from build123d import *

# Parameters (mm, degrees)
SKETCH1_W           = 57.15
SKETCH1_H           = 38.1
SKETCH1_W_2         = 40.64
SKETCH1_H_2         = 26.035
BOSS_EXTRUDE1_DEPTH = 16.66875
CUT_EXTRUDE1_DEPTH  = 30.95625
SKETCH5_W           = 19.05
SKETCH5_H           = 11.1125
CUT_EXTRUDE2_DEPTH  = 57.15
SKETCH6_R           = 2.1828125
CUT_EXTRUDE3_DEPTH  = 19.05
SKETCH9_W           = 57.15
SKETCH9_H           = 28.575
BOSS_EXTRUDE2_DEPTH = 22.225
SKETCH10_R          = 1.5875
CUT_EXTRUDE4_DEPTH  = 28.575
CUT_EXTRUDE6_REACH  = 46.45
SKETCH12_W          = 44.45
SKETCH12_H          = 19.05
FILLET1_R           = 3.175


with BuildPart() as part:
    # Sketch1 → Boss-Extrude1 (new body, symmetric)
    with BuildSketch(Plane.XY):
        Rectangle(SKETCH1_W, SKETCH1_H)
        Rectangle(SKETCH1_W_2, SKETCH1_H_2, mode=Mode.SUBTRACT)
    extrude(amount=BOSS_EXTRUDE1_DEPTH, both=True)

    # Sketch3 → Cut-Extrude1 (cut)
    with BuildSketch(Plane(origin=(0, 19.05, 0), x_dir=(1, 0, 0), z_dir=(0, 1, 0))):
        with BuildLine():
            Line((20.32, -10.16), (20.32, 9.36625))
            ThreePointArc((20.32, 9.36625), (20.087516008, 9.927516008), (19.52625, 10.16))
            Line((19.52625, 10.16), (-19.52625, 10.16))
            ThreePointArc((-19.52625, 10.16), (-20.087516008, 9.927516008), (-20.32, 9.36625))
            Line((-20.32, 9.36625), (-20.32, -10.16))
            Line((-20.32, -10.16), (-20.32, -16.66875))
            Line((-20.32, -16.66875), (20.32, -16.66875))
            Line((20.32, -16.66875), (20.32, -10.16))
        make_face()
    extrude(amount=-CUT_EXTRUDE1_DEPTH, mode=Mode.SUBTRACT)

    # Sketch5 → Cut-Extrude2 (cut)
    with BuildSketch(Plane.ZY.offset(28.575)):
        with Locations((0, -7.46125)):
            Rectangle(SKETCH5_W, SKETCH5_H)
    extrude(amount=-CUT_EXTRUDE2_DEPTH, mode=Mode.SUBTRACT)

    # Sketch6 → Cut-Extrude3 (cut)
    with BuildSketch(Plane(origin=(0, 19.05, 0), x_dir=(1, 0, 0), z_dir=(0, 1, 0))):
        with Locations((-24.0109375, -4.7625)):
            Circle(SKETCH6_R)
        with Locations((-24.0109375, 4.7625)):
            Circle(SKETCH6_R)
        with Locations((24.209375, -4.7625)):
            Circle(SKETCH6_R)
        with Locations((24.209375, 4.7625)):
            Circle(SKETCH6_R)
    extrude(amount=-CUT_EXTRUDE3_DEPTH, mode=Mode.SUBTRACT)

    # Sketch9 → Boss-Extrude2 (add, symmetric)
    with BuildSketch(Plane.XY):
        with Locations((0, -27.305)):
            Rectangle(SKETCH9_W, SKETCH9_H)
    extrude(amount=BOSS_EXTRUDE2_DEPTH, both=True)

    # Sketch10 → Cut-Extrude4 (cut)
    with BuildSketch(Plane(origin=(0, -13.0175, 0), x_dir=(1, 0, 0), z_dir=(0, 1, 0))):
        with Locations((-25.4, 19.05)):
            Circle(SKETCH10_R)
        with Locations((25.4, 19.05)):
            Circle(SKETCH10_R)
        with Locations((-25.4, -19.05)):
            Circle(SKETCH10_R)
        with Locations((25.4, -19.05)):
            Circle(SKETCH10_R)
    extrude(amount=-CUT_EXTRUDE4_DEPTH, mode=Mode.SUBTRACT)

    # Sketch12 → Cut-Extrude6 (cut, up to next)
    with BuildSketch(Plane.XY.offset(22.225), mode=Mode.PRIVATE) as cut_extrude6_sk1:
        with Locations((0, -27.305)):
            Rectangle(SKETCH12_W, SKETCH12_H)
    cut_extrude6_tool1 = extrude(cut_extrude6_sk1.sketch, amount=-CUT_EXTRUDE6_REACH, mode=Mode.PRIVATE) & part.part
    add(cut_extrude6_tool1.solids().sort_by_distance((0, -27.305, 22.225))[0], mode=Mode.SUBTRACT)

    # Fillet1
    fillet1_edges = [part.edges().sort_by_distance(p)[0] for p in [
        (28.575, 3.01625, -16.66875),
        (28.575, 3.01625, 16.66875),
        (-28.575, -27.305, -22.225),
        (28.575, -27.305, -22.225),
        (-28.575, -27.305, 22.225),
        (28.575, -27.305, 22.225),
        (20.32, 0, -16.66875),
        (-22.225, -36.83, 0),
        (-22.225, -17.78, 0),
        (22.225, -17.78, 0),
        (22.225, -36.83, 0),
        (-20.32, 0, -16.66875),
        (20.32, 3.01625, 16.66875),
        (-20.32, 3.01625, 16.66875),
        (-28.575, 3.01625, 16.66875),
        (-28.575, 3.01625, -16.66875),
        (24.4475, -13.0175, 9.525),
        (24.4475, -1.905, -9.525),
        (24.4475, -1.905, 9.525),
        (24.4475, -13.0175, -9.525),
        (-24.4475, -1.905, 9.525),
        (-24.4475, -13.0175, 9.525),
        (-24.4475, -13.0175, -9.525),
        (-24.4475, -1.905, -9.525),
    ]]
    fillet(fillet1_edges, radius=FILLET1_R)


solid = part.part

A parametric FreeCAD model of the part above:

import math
import FreeCAD as App
import Part
import Sketcher

V = App.Vector
Q = App.Units.Quantity


def edges_at(feature, points):
    """Names of the edges that pass closest to the given points."""
    edges = feature.Shape.Edges
    near = lambda p: min(range(len(edges)), key=lambda i: edges[i].distToShape(Part.Vertex(*p))[0])
    return sorted({f"Edge{near(p) + 1}" for p in points})

doc = App.newDocument("Part")
body = doc.addObject("PartDesign::Body", "Body")

sketch1 = body.newObject("Sketcher::SketchObject", "Sketch")
sketch1.AttachmentSupport = (doc.getObject("XY_Plane"), [""])
sketch1.MapMode = "FlatFace"
sketch1.addGeometry(Part.LineSegment(V(-29, 19, 0), V(-29, -19, 0)), False)
sketch1.addGeometry(Part.LineSegment(V(-29, -19, 0), V(29, -19, 0)), False)
sketch1.addGeometry(Part.LineSegment(V(29, -19, 0), V(29, 19, 0)), False)
sketch1.addGeometry(Part.LineSegment(V(29, 19, 0), V(-29, 19, 0)), False)
sketch1.addGeometry(Part.LineSegment(V(20, -13, 0), V(-20, -13, 0)), False)
sketch1.addGeometry(Part.LineSegment(V(-20, -13, 0), V(-20, 13, 0)), False)
sketch1.addGeometry(Part.LineSegment(V(-20, 13, 0), V(20, 13, 0)), False)
sketch1.addGeometry(Part.LineSegment(V(20, 13, 0), V(20, -13, 0)), False)
sketch1.addConstraint(Sketcher.Constraint("Coincident", 0, 2, 1, 1))
sketch1.addConstraint(Sketcher.Constraint("Coincident", 1, 2, 2, 1))
sketch1.addConstraint(Sketcher.Constraint("Coincident", 2, 2, 3, 1))
sketch1.addConstraint(Sketcher.Constraint("Coincident", 3, 2, 0, 1))
sketch1.addConstraint(Sketcher.Constraint("Coincident", 4, 2, 5, 1))
sketch1.addConstraint(Sketcher.Constraint("Coincident", 5, 2, 6, 1))
sketch1.addConstraint(Sketcher.Constraint("Coincident", 6, 2, 7, 1))
sketch1.addConstraint(Sketcher.Constraint("Coincident", 7, 2, 4, 1))
sketch1.addConstraint(Sketcher.Constraint("Vertical", 0))
sketch1.addConstraint(Sketcher.Constraint("Horizontal", 1))
sketch1.addConstraint(Sketcher.Constraint("Vertical", 2))
sketch1.addConstraint(Sketcher.Constraint("Horizontal", 3))
sketch1.addConstraint(Sketcher.Constraint("Horizontal", 4))
sketch1.addConstraint(Sketcher.Constraint("Vertical", 5))
sketch1.addConstraint(Sketcher.Constraint("Horizontal", 6))
sketch1.addConstraint(Sketcher.Constraint("Vertical", 7))
sketch1.addConstraint(Sketcher.Constraint("Symmetric", 0, 2, 2, 2, -1, 1))
sketch1.addConstraint(Sketcher.Constraint("Symmetric", 4, 2, 6, 2, -1, 1))
sketch1.addConstraint(Sketcher.Constraint("DistanceX", 4, 2, 4, 1, Q("1.6 in")))
sketch1.addConstraint(Sketcher.Constraint("DistanceY", 0, 2, 0, 1, Q("1.5 in")))
sketch1.addConstraint(Sketcher.Constraint("DistanceX", 1, 1, 1, 2, Q("2.25 in")))
sketch1.addConstraint(Sketcher.Constraint("DistanceY", 5, 1, 5, 2, Q("1.025 in")))
pad1 = body.newObject("PartDesign::Pad", "Pad")
pad1.Profile = sketch1
pad1.Length = Q("1.3125 in")
pad1.Midplane = True

sketch2 = body.newObject("Sketcher::SketchObject", "Sketch001")
sketch2.AttachmentSupport = (doc.getObject("XZ_Plane"), [""])
sketch2.MapMode = "FlatFace"
sketch2.AttachmentOffset = App.Placement(V(0, 0, -0.75 * 25.4), App.Rotation())
sketch2.addGeometry(Part.ArcOfCircle(Part.Circle(V(19.5, -9.4, 0), V(0, 0, 1), 0.8), math.radians(-90), math.radians(0)), False)
sketch2.addGeometry(Part.LineSegment(V(19.5, -10.2, 0), V(-19.5, -10.2, 0)), False)
sketch2.addGeometry(Part.ArcOfCircle(Part.Circle(V(-19.5, -9.4, 0), V(0, 0, 1), 0.8), math.radians(180), math.radians(270)), False)
sketch2.addGeometry(Part.LineSegment(V(-20.3, -9.4, 0), V(-20.3, 16.7, 0)), False)
sketch2.addGeometry(Part.LineSegment(V(-20.3, 16.7, 0), V(20.3, 16.7, 0)), False)
sketch2.addGeometry(Part.LineSegment(V(20.3, 16.7, 0), V(20.3, -9.4, 0)), False)
sketch2.addConstraint(Sketcher.Constraint("Tangent", 0, 1, 1, 1))
sketch2.addConstraint(Sketcher.Constraint("Tangent", 1, 2, 2, 2))
sketch2.addConstraint(Sketcher.Constraint("Tangent", 2, 1, 3, 1))
sketch2.addConstraint(Sketcher.Constraint("Coincident", 3, 2, 4, 1))
sketch2.addConstraint(Sketcher.Constraint("Coincident", 4, 2, 5, 1))
sketch2.addConstraint(Sketcher.Constraint("Tangent", 5, 2, 0, 2))
sketch2.addConstraint(Sketcher.Constraint("Horizontal", 1))
sketch2.addConstraint(Sketcher.Constraint("Vertical", 3))
sketch2.addConstraint(Sketcher.Constraint("Horizontal", 4))
sketch2.addConstraint(Sketcher.Constraint("Vertical", 5))
sketch2.addConstraint(Sketcher.Constraint("Equal", 0, 2))
sketch2.addConstraint(Sketcher.Constraint("DistanceX", 4, 1, 4, 2, Q("1.6 in")))
sketch2.addConstraint(Sketcher.Constraint("Radius", 0, Q("0.03125 in")))
sketch2.addConstraint(Sketcher.Constraint("DistanceY", 0, 1, -1, 1, Q("0.4 in")))
sketch2.addConstraint(Sketcher.Constraint("DistanceX", 2, 1, -1, 1, Q("0.8 in")))
sketch2.addConstraint(Sketcher.Constraint("DistanceY", 3, 1, 3, 2, Q("1.025 in")))
pocket1 = body.newObject("PartDesign::Pocket", "Pocket")
pocket1.Profile = sketch2
pocket1.Length = Q("1.21875 in")
pocket1.Reversed = True

sketch3 = body.newObject("Sketcher::SketchObject", "Sketch002")
sketch3.AttachmentSupport = (doc.getObject("YZ_Plane"), [""])
sketch3.MapMode = "FlatFace"
sketch3.AttachmentOffset = App.Placement(V(0, 0, -1.125 * 25.4), App.Rotation())
sketch3.addGeometry(Part.LineSegment(V(-2, -10, 0), V(-13, -10, 0)), False)
sketch3.addGeometry(Part.LineSegment(V(-13, -10, 0), V(-13, 10, 0)), False)
sketch3.addGeometry(Part.LineSegment(V(-13, 10, 0), V(-2, 10, 0)), False)
sketch3.addGeometry(Part.LineSegment(V(-2, 10, 0), V(-2, -10, 0)), False)
sketch3.addConstraint(Sketcher.Constraint("Coincident", 0, 2, 1, 1))
sketch3.addConstraint(Sketcher.Constraint("Coincident", 1, 2, 2, 1))
sketch3.addConstraint(Sketcher.Constraint("Coincident", 2, 2, 3, 1))
sketch3.addConstraint(Sketcher.Constraint("Coincident", 3, 2, 0, 1))
sketch3.addConstraint(Sketcher.Constraint("Horizontal", 0))
sketch3.addConstraint(Sketcher.Constraint("Vertical", 1))
sketch3.addConstraint(Sketcher.Constraint("Horizontal", 2))
sketch3.addConstraint(Sketcher.Constraint("Vertical", 3))
sketch3.addConstraint(Sketcher.Constraint("DistanceY", 1, 1, 1, 2, Q("0.75 in")))
sketch3.addConstraint(Sketcher.Constraint("DistanceX", 0, 2, 0, 1, Q("0.4375 in")))
sketch3.addConstraint(Sketcher.Constraint("DistanceY", 0, 2, -1, 1, Q("0.375 in")))
sketch3.addConstraint(Sketcher.Constraint("DistanceX", 2, 2, -1, 1, Q("0.075 in")))
pocket2 = body.newObject("PartDesign::Pocket", "Pocket001")
pocket2.Profile = sketch3
pocket2.Length = Q("2.25 in")
pocket2.Reversed = True

sketch4 = body.newObject("Sketcher::SketchObject", "Sketch003")
sketch4.AttachmentSupport = (doc.getObject("XZ_Plane"), [""])
sketch4.MapMode = "FlatFace"
sketch4.AttachmentOffset = App.Placement(V(0, 0, -0.75 * 25.4), App.Rotation())
sketch4.addGeometry(Part.Circle(V(-24, 4.8, 0), V(0, 0, 1), 2.2), False)
sketch4.addGeometry(Part.Circle(V(-24, -4.8, 0), V(0, 0, 1), 2.2), False)
sketch4.addGeometry(Part.Circle(V(24.2, 4.8, 0), V(0, 0, 1), 2.2), False)
sketch4.addGeometry(Part.Circle(V(24.2, -4.8, 0), V(0, 0, 1), 2.2), False)
sketch4.addConstraint(Sketcher.Constraint("Equal", 0, 1))
sketch4.addConstraint(Sketcher.Constraint("Equal", 1, 2))
sketch4.addConstraint(Sketcher.Constraint("Equal", 2, 3))
sketch4.addConstraint(Sketcher.Constraint("Symmetric", 0, 3, 1, 3, -1))
sketch4.addConstraint(Sketcher.Constraint("Symmetric", 2, 3, 3, 3, -1))
sketch4.addConstraint(Sketcher.Constraint("Horizontal", 0, 3, 2, 3))
sketch4.addConstraint(Sketcher.Constraint("Diameter", 0, Q("0.171875 in")))
sketch4.addConstraint(Sketcher.Constraint("DistanceY", -1, 1, 0, 3, Q("0.1875 in")))
sketch4.addConstraint(Sketcher.Constraint("DistanceX", -1, 1, 2, 3, Q("0.953125 in")))
sketch4.addConstraint(Sketcher.Constraint("DistanceX", 0, 3, -1, 1, 24.010938))
pocket3 = body.newObject("PartDesign::Pocket", "Pocket002")
pocket3.Profile = sketch4
pocket3.Length = Q("0.75 in")
pocket3.Reversed = True

sketch5 = body.newObject("Sketcher::SketchObject", "Sketch004")
sketch5.AttachmentSupport = (doc.getObject("XY_Plane"), [""])
sketch5.MapMode = "FlatFace"
sketch5.addGeometry(Part.LineSegment(V(-29, -13, 0), V(-29, -42, 0)), False)
sketch5.addGeometry(Part.LineSegment(V(-29, -42, 0), V(29, -42, 0)), False)
sketch5.addGeometry(Part.LineSegment(V(29, -42, 0), V(29, -13, 0)), False)
sketch5.addGeometry(Part.LineSegment(V(29, -13, 0), V(-29, -13, 0)), False)
sketch5.addConstraint(Sketcher.Constraint("Coincident", 0, 2, 1, 1))
sketch5.addConstraint(Sketcher.Constraint("Coincident", 1, 2, 2, 1))
sketch5.addConstraint(Sketcher.Constraint("Coincident", 2, 2, 3, 1))
sketch5.addConstraint(Sketcher.Constraint("Coincident", 3, 2, 0, 1))
sketch5.addConstraint(Sketcher.Constraint("Vertical", 0))
sketch5.addConstraint(Sketcher.Constraint("Horizontal", 1))
sketch5.addConstraint(Sketcher.Constraint("Vertical", 2))
sketch5.addConstraint(Sketcher.Constraint("Horizontal", 3))
sketch5.addConstraint(Sketcher.Constraint("DistanceX", 1, 1, 1, 2, Q("2.25 in")))
sketch5.addConstraint(Sketcher.Constraint("DistanceY", 0, 2, 0, 1, Q("1.125 in")))
sketch5.addConstraint(Sketcher.Constraint("DistanceX", 0, 2, -1, 1, Q("1.125 in")))
sketch5.addConstraint(Sketcher.Constraint("DistanceY", 0, 2, -1, 1, Q("1.6375 in")))
pad2 = body.newObject("PartDesign::Pad", "Pad001")
pad2.Profile = sketch5
pad2.Length = Q("1.75 in")
pad2.Midplane = True

sketch6 = body.newObject("Sketcher::SketchObject", "Sketch005")
sketch6.AttachmentSupport = (doc.getObject("XZ_Plane"), [""])
sketch6.MapMode = "FlatFace"
sketch6.AttachmentOffset = App.Placement(V(0, 0, 0.5125 * 25.4), App.Rotation())
sketch6.addGeometry(Part.Circle(V(-25.4, -19.1, 0), V(0, 0, 1), 1.6), False)
sketch6.addGeometry(Part.Circle(V(25.4, -19.1, 0), V(0, 0, 1), 1.6), False)
sketch6.addGeometry(Part.Circle(V(-25.4, 19.1, 0), V(0, 0, 1), 1.6), False)
sketch6.addGeometry(Part.Circle(V(25.4, 19.1, 0), V(0, 0, 1), 1.6), False)
sketch6.addConstraint(Sketcher.Constraint("Equal", 0, 1))
sketch6.addConstraint(Sketcher.Constraint("Equal", 1, 2))
sketch6.addConstraint(Sketcher.Constraint("Equal", 2, 3))
sketch6.addConstraint(Sketcher.Constraint("Symmetric", 1, 3, 2, 3, -1, 1))
sketch6.addConstraint(Sketcher.Constraint("Symmetric", 0, 3, 3, 3, -1, 1))
sketch6.addConstraint(Sketcher.Constraint("Symmetric", 0, 3, 1, 3, -2))
sketch6.addConstraint(Sketcher.Constraint("Diameter", 0, Q("0.125 in")))
sketch6.addConstraint(Sketcher.Constraint("DistanceX", 0, 3, -1, 1, Q("1 in")))
sketch6.addConstraint(Sketcher.Constraint("DistanceY", 0, 3, 2, 3, Q("1.5 in")))
pocket4 = body.newObject("PartDesign::Pocket", "Pocket003")
pocket4.Profile = sketch6
pocket4.Length = Q("1.125 in")
pocket4.Reversed = True

sketch7 = body.newObject("Sketcher::SketchObject", "Sketch006")
sketch7.AttachmentSupport = (doc.getObject("XY_Plane"), [""])
sketch7.MapMode = "FlatFace"
sketch7.AttachmentOffset = App.Placement(V(0, 0, 0.875 * 25.4), App.Rotation())
sketch7.addGeometry(Part.LineSegment(V(-22, -18, 0), V(-22, -37, 0)), False)
sketch7.addGeometry(Part.LineSegment(V(-22, -37, 0), V(22, -37, 0)), False)
sketch7.addGeometry(Part.LineSegment(V(22, -37, 0), V(22, -18, 0)), False)
sketch7.addGeometry(Part.LineSegment(V(22, -18, 0), V(-22, -18, 0)), False)
sketch7.addConstraint(Sketcher.Constraint("Coincident", 0, 2, 1, 1))
sketch7.addConstraint(Sketcher.Constraint("Coincident", 1, 2, 2, 1))
sketch7.addConstraint(Sketcher.Constraint("Coincident", 2, 2, 3, 1))
sketch7.addConstraint(Sketcher.Constraint("Coincident", 3, 2, 0, 1))
sketch7.addConstraint(Sketcher.Constraint("Vertical", 0))
sketch7.addConstraint(Sketcher.Constraint("Horizontal", 1))
sketch7.addConstraint(Sketcher.Constraint("Vertical", 2))
sketch7.addConstraint(Sketcher.Constraint("Horizontal", 3))
sketch7.addConstraint(Sketcher.Constraint("DistanceX", 1, 1, 1, 2, Q("1.75 in")))
sketch7.addConstraint(Sketcher.Constraint("DistanceY", 0, 2, 0, 1, Q("0.75 in")))
sketch7.addConstraint(Sketcher.Constraint("DistanceY", 2, 2, -1, 1, Q("0.7 in")))
sketch7.addConstraint(Sketcher.Constraint("DistanceX", 0, 2, -1, 1, Q("0.875 in")))
pocket5 = body.newObject("PartDesign::Pocket", "Pocket004")
pocket5.Profile = sketch7
pocket5.Type = "UpToFirst"
doc.recompute()

fillet = body.newObject("PartDesign::Fillet", "Fillet")
fillet.Base = (pocket5, edges_at(pocket5, [
    (28.575, 3.016, -16.669),
    (28.575, 3.016, 16.669),
    (-28.575, -27.305, -22.225),
    (28.575, -27.305, -22.225),
    (-28.575, -27.305, 22.225),
    (28.575, -27.305, 22.225),
    (20.32, 0, -16.669),
    (-22.225, -36.83, 0),
    (-22.225, -17.78, 0),
    (22.225, -17.78, 0),
    (22.225, -36.83, 0),
    (-20.32, 0, -16.669),
    (20.32, 3.016, 16.669),
    (-20.32, 3.016, 16.669),
    (-28.575, 3.016, 16.669),
    (-28.575, 3.016, -16.669),
    (24.448, -13.018, 9.525),
    (24.448, -1.905, -9.525),
    (24.448, -1.905, 9.525),
    (24.448, -13.018, -9.525),
    (-24.448, -1.905, 9.525),
    (-24.448, -13.018, 9.525),
    (-24.448, -13.018, -9.525),
    (-24.448, -1.905, -9.525),
]))
fillet.Radius = Q("0.125 in")

doc.recompute()
